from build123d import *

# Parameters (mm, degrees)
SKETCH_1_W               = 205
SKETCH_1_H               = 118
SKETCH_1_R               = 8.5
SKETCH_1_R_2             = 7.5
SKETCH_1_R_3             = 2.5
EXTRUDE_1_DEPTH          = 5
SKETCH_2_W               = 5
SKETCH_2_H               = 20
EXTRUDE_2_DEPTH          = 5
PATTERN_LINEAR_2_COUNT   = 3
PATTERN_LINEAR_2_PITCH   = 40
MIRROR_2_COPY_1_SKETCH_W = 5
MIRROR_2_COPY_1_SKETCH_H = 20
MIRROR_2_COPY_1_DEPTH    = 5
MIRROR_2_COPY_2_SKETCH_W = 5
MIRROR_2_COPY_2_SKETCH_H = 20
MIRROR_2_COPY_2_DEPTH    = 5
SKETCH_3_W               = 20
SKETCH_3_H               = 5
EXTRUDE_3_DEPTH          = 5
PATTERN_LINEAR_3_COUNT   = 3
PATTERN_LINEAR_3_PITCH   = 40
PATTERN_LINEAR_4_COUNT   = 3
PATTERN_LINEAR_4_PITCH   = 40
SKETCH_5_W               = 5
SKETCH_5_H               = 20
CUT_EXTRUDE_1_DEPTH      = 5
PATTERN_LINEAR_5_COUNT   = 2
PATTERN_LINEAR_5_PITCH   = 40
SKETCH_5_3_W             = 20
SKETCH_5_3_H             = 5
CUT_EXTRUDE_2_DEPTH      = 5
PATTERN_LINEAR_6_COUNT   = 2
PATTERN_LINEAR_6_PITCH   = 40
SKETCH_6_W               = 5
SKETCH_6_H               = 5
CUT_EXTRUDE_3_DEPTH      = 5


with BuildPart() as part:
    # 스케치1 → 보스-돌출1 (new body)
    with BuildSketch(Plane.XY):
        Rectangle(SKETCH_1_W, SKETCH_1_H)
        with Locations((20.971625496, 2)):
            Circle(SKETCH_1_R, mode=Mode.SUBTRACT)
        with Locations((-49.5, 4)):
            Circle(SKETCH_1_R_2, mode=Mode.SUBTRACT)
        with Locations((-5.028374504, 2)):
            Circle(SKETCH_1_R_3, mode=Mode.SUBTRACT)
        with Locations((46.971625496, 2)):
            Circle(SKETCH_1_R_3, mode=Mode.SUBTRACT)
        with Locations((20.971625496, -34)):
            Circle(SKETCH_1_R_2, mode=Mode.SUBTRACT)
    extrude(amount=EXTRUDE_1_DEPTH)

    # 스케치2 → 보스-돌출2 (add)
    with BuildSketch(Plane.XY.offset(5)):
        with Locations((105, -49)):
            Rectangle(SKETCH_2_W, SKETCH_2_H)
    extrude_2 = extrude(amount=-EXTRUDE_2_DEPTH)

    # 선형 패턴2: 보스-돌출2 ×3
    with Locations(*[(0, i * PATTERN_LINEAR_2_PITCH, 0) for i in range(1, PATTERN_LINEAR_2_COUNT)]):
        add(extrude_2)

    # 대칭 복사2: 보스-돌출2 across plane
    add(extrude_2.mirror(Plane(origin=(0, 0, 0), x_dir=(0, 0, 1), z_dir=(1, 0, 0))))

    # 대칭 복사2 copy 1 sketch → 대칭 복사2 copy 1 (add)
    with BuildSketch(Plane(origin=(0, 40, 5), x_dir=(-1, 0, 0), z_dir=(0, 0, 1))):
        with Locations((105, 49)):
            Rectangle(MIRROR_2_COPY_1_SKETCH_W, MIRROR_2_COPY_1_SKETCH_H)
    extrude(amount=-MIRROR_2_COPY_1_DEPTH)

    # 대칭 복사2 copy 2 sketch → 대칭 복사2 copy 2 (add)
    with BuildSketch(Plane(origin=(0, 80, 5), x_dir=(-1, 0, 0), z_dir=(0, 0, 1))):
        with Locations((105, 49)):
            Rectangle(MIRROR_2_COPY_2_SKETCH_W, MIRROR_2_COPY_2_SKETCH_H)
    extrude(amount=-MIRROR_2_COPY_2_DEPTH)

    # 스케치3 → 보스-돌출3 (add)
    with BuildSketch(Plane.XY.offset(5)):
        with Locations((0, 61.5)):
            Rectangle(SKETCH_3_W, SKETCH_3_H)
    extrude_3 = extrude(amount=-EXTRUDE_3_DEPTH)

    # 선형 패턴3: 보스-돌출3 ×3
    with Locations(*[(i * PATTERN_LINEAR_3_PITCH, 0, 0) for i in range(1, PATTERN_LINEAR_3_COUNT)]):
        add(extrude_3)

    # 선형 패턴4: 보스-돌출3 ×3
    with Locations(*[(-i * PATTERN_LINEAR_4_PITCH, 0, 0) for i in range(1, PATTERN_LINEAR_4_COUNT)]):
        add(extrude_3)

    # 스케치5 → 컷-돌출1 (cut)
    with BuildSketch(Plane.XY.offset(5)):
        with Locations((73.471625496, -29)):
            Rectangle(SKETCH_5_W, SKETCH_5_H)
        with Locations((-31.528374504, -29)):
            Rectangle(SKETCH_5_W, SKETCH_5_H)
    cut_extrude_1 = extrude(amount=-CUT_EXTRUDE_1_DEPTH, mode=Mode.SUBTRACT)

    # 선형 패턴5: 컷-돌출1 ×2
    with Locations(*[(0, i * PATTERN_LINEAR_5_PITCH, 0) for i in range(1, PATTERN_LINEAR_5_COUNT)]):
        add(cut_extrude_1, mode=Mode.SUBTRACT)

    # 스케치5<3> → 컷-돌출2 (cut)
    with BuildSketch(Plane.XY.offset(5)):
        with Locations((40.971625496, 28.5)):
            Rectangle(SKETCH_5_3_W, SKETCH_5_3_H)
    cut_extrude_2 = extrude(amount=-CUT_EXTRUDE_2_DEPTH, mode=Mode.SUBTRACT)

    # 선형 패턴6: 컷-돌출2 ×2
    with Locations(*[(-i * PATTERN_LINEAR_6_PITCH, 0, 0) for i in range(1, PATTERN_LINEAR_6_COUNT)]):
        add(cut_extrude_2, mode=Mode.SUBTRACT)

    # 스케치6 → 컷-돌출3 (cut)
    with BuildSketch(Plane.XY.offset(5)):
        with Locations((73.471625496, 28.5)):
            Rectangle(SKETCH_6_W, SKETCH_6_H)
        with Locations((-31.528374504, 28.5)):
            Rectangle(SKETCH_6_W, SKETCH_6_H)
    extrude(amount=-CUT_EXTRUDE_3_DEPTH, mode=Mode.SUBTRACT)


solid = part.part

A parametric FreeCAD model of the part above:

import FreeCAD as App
import Part
import Sketcher
from FreeCAD import Vector
Q = App.Units.Quantity

doc = App.newDocument("Part")
body = doc.addObject("PartDesign::Body", "Body")

sketch1 = body.newObject("Sketcher::SketchObject", "Sketch")
sketch1.AttachmentSupport = (doc.getObject("XY_Plane"), [""])
sketch1.MapMode = "FlatFace"
sketch1.addGeometry(Part.LineSegment(Vector(-102.5, 59, 0), Vector(-102.5, -59, 0)), False)
sketch1.addGeometry(Part.LineSegment(Vector(-102.5, -59, 0), Vector(102.5, -59, 0)), False)
sketch1.addGeometry(Part.LineSegment(Vector(102.5, -59, 0), Vector(102.5, 59, 0)), False)
sketch1.addGeometry(Part.LineSegment(Vector(102.5, 59, 0), Vector(-102.5, 59, 0)), False)
sketch1.addGeometry(Part.Circle(Vector(21, -34, 0), Vector(0, 0, 1), 7.5), False)
sketch1.addGeometry(Part.Circle(Vector(-49.5, 4, 0), Vector(0, 0, 1), 7.5), False)
sketch1.addGeometry(Part.Circle(Vector(-5, 2, 0), Vector(0, 0, 1), 2.5), False)
sketch1.addGeometry(Part.Circle(Vector(21, 2, 0), Vector(0, 0, 1), 8.5), False)
sketch1.addGeometry(Part.Circle(Vector(47, 2, 0), Vector(0, 0, 1), 2.5), False)
sketch1.addConstraint(Sketcher.Constraint("Coincident", 0, 2, 1, 1))
sketch1.addConstraint(Sketcher.Constraint("Coincident", 1, 2, 2, 1))
sketch1.addConstraint(Sketcher.Constraint("Coincident", 2, 2, 3, 1))
sketch1.addConstraint(Sketcher.Constraint("Coincident", 3, 2, 0, 1))
sketch1.addConstraint(Sketcher.Constraint("Vertical", 0))
sketch1.addConstraint(Sketcher.Constraint("Horizontal", 1))
sketch1.addConstraint(Sketcher.Constraint("Vertical", 2))
sketch1.addConstraint(Sketcher.Constraint("Horizontal", 3))
sketch1.addConstraint(Sketcher.Constraint("Equal", 4, 5))
sketch1.addConstraint(Sketcher.Constraint("Equal", 6, 8))
sketch1.addConstraint(Sketcher.Constraint("Symmetric", 0, 2, 2, 2, -1, 1))
sketch1.addConstraint(Sketcher.Constraint("Horizontal", 6, 3, 7, 3))
sketch1.addConstraint(Sketcher.Constraint("Horizontal", 7, 3, 8, 3))
sketch1.addConstraint(Sketcher.Constraint("Vertical", 4, 3, 7, 3))
sketch1.addConstraint(Sketcher.Constraint("Diameter", 4, Q("15 mm")))
sketch1.addConstraint(Sketcher.Constraint("Diameter", 6, Q("5 mm")))
sketch1.addConstraint(Sketcher.Constraint("Diameter", 7, Q("17 mm")))
sketch1.addConstraint(Sketcher.Constraint("DistanceX", 1, 1, 1, 2, Q("205 mm")))
sketch1.addConstraint(Sketcher.Constraint("DistanceY", 0, 2, 0, 1, Q("118 mm")))
sketch1.addConstraint(Sketcher.Constraint("DistanceY", 4, 3, -1, 1, Q("34 mm")))
sketch1.addConstraint(Sketcher.Constraint("DistanceY", -1, 1, 5, 3, Q("4 mm")))
sketch1.addConstraint(Sketcher.Constraint("DistanceY", -1, 1, 6, 3, Q("2 mm")))
sketch1.addConstraint(Sketcher.Constraint("DistanceX", 6, 3, 4, 3, Q("26 mm")))
sketch1.addConstraint(Sketcher.Constraint("DistanceX", 7, 3, 8, 3, Q("26 mm")))
sketch1.addConstraint(Sketcher.Constraint("DistanceX", 0, 2, 5, 3, Q("53 mm")))
sketch1.addConstraint(Sketcher.Constraint("DistanceX", -1, 1, 4, 3, Q("20.971625 mm")))
pad1 = body.newObject("PartDesign::Pad", "Pad")
pad1.Profile = sketch1
pad1.Length = 5

sketch2 = body.newObject("Sketcher::SketchObject", "Sketch001")
sketch2.AttachmentSupport = (doc.getObject("XY_Plane"), [""])
sketch2.MapMode = "FlatFace"
sketch2.AttachmentOffset = App.Placement(Vector(0, 0, 5), App.Rotation())
sketch2.addGeometry(Part.LineSegment(Vector(102, -39, 0), Vector(102, -59, 0)), False)
sketch2.addGeometry(Part.LineSegment(Vector(102, -59, 0), Vector(108, -59, 0)), False)
sketch2.addGeometry(Part.LineSegment(Vector(108, -59, 0), Vector(108, -39, 0)), False)
sketch2.addGeometry(Part.LineSegment(Vector(108, -39, 0), Vector(102, -39, 0)), False)
sketch2.addConstraint(Sketcher.Constraint("Coincident", 0, 2, 1, 1))
sketch2.addConstraint(Sketcher.Constraint("Coincident", 1, 2, 2, 1))
sketch2.addConstraint(Sketcher.Constraint("Coincident", 2, 2, 3, 1))
sketch2.addConstraint(Sketcher.Constraint("Coincident", 3, 2, 0, 1))
sketch2.addConstraint(Sketcher.Constraint("Vertical", 0))
sketch2.addConstraint(Sketcher.Constraint("Horizontal", 1))
sketch2.addConstraint(Sketcher.Constraint("Vertical", 2))
sketch2.addConstraint(Sketcher.Constraint("Horizontal", 3))
sketch2.addConstraint(Sketcher.Constraint("DistanceX", 1, 1, 1, 2, Q("5 mm")))
sketch2.addConstraint(Sketcher.Constraint("DistanceY", 0, 2, 0, 1, Q("20 mm")))
sketch2.addConstraint(Sketcher.Constraint("DistanceY", 0, 2, -1, 1, Q("59 mm")))
sketch2.addConstraint(Sketcher.Constraint("DistanceX", -1, 1, 0, 2, Q("102.5 mm")))
pad2 = body.newObject("PartDesign::Pad", "Pad001")
pad2.Profile = sketch2
pad2.Length = 5
pad2.Reversed = True
doc.recompute()

linearpattern = body.newObject("PartDesign::LinearPattern", "LinearPattern")
linearpattern.Originals = [pad2]
linearpattern.Direction = (doc.getObject("Y_Axis"), [""])
linearpattern.Mode = "offset"
linearpattern.Offset = 40
linearpattern.Occurrences = 3
body.Tip = linearpattern
doc.recompute()

mirrored = body.newObject("PartDesign::Mirrored", "Mirrored")
mirrored.Originals = [pad2]
mirrored.MirrorPlane = (doc.getObject("YZ_Plane"), [""])
body.Tip = mirrored

sketch3 = body.newObject("Sketcher::SketchObject", "Sketch002")
sketch3.AttachmentSupport = (doc.getObject("XY_Plane"), [""])
sketch3.MapMode = "FlatFace"
sketch3.AttachmentOffset = App.Placement(Vector(0, 0, 5), App.Rotation())
sketch3.addGeometry(Part.LineSegment(Vector(-102, -19, 0), Vector(-102, 1, 0)), False)
sketch3.addGeometry(Part.LineSegment(Vector(-102, 1, 0), Vector(-108, 1, 0)), False)
sketch3.addGeometry(Part.LineSegment(Vector(-108, 1, 0), Vector(-108, -19, 0)), False)
sketch3.addGeometry(Part.LineSegment(Vector(-108, -19, 0), Vector(-102, -19, 0)), False)
sketch3.addConstraint(Sketcher.Constraint("Coincident", 0, 2, 1, 1))
sketch3.addConstraint(Sketcher.Constraint("Coincident", 1, 2, 2, 1))
sketch3.addConstraint(Sketcher.Constraint("Coincident", 2, 2, 3, 1))
sketch3.addConstraint(Sketcher.Constraint("Coincident", 3, 2, 0, 1))
sketch3.addConstraint(Sketcher.Constraint("Vertical", 0))
sketch3.addConstraint(Sketcher.Constraint("Horizontal", 1))
sketch3.addConstraint(Sketcher.Constraint("Vertical", 2))
sketch3.addConstraint(Sketcher.Constraint("Horizontal", 3))
sketch3.addConstraint(Sketcher.Constraint("DistanceX", 1, 2, 1, 1, Q("5 mm")))
sketch3.addConstraint(Sketcher.Constraint("DistanceY", 0, 1, 0, 2, Q("20 mm")))
sketch3.addConstraint(Sketcher.Constraint("DistanceY", -1, 1, 0, 2, Q("1 mm")))
sketch3.addConstraint(Sketcher.Constraint("DistanceX", 0, 2, -1, 1, Q("102.5 mm")))
pad3 = body.newObject("PartDesign::Pad", "Pad002")
pad3.Profile = sketch3
pad3.Length = 5
pad3.Reversed = True

sketch4 = body.newObject("Sketcher::SketchObject", "Sketch003")
sketch4.AttachmentSupport = (doc.getObject("XY_Plane"), [""])
sketch4.MapMode = "FlatFace"
sketch4.AttachmentOffset = App.Placement(Vector(0, 0, 5), App.Rotation())
sketch4.addGeometry(Part.LineSegment(Vector(-102, 21, 0), Vector(-102, 41, 0)), False)
sketch4.addGeometry(Part.LineSegment(Vector(-102, 41, 0), Vector(-108, 41, 0)), False)
sketch4.addGeometry(Part.LineSegment(Vector(-108, 41, 0), Vector(-108, 21, 0)), False)
sketch4.addGeometry(Part.LineSegment(Vector(-108, 21, 0), Vector(-102, 21, 0)), False)
sketch4.addConstraint(Sketcher.Constraint("Coincident", 0, 2, 1, 1))
sketch4.addConstraint(Sketcher.Constraint("Coincident", 1, 2, 2, 1))
sketch4.addConstraint(Sketcher.Constraint("Coincident", 2, 2, 3, 1))
sketch4.addConstraint(Sketcher.Constraint("Coincident", 3, 2, 0, 1))
sketch4.addConstraint(Sketcher.Constraint("Vertical", 0))
sketch4.addConstraint(Sketcher.Constraint("Horizontal", 1))
sketch4.addConstraint(Sketcher.Constraint("Vertical", 2))
sketch4.addConstraint(Sketcher.Constraint("Horizontal", 3))
sketch4.addConstraint(Sketcher.Constraint("DistanceX", 1, 2, 1, 1, Q("5 mm")))
sketch4.addConstraint(Sketcher.Constraint("DistanceY", 0, 1, 0, 2, Q("20 mm")))
sketch4.addConstraint(Sketcher.Constraint("DistanceY", -1, 1, 0, 2, Q("41 mm")))
sketch4.addConstraint(Sketcher.Constraint("DistanceX", 0, 2, -1, 1, Q("102.5 mm")))
pad4 = body.newObject("PartDesign::Pad", "Pad003")
pad4.Profile = sketch4
pad4.Length = 5
pad4.Reversed = True

sketch5 = body.newObject("Sketcher::SketchObject", "Sketch004")
sketch5.AttachmentSupport = (doc.getObject("XY_Plane"), [""])
sketch5.MapMode = "FlatFace"
sketch5.AttachmentOffset = App.Placement(Vector(0, 0, 5), App.Rotation())
sketch5.addGeometry(Part.LineSegment(Vector(-10, 64, 0), Vector(-10, 59, 0)), False)
sketch5.addGeometry(Part.LineSegment(Vector(-10, 59, 0), Vector(10, 59, 0)), False)
sketch5.addGeometry(Part.LineSegment(Vector(10, 59, 0), Vector(10, 64, 0)), False)
sketch5.addGeometry(Part.LineSegment(Vector(10, 64, 0), Vector(-10, 64, 0)), False)
sketch5.addConstraint(Sketcher.Constraint("Coincident", 0, 2, 1, 1))
sketch5.addConstraint(Sketcher.Constraint("Coincident", 1, 2, 2, 1))
sketch5.addConstraint(Sketcher.Constraint("Coincident", 2, 2, 3, 1))
sketch5.addConstraint(Sketcher.Constraint("Coincident", 3, 2, 0, 1))
sketch5.addConstraint(Sketcher.Constraint("Vertical", 0))
sketch5.addConstraint(Sketcher.Constraint("Horizontal", 1))
sketch5.addConstraint(Sketcher.Constraint("Vertical", 2))
sketch5.addConstraint(Sketcher.Constraint("Horizontal", 3))
sketch5.addConstraint(Sketcher.Constraint("DistanceX", 1, 1, 1, 2, Q("20 mm")))
sketch5.addConstraint(Sketcher.Constraint("DistanceY", 0, 2, 0, 1, Q("5 mm")))
sketch5.addConstraint(Sketcher.Constraint("DistanceX", 0, 2, -1, 1, Q("10 mm")))
sketch5.addConstraint(Sketcher.Constraint("DistanceY", -1, 1, 0, 2, Q("59 mm")))
pad5 = body.newObject("PartDesign::Pad", "Pad004")
pad5.Profile = sketch5
pad5.Length = 5
pad5.Reversed = True
doc.recompute()

linearpattern2 = body.newObject("PartDesign::LinearPattern", "LinearPattern001")
linearpattern2.Originals = [pad5]
linearpattern2.Direction = (doc.getObject("X_Axis"), [""])
linearpattern2.Mode = "offset"
linearpattern2.Offset = 40
linearpattern2.Occurrences = 3
body.Tip = linearpattern2
doc.recompute()

linearpattern3 = body.newObject("PartDesign::LinearPattern", "LinearPattern002")
linearpattern3.Originals = [pad5]
linearpattern3.Direction = (doc.getObject("X_Axis"), [""])
linearpattern3.Mode = "offset"
linearpattern3.Offset = 40
linearpattern3.Occurrences = 3
linearpattern3.Reversed = True
body.Tip = linearpattern3

sketch6 = body.newObject("Sketcher::SketchObject", "Sketch005")
sketch6.AttachmentSupport = (doc.getObject("XY_Plane"), [""])
sketch6.MapMode = "FlatFace"
sketch6.AttachmentOffset = App.Placement(Vector(0, 0, 5), App.Rotation())
sketch6.addGeometry(Part.LineSegment(Vector(71, -19, 0), Vector(71, -39, 0)), False)
sketch6.addGeometry(Part.LineSegment(Vector(71, -39, 0), Vector(76, -39, 0)), False)
sketch6.addGeometry(Part.LineSegment(Vector(76, -39, 0), Vector(76, -19, 0)), False)
sketch6.addGeometry(Part.LineSegment(Vector(76, -19, 0), Vector(71, -19, 0)), False)
sketch6.addGeometry(Part.LineSegment(Vector(-34, -19, 0), Vector(-34, -39, 0)), False)
sketch6.addGeometry(Part.LineSegment(Vector(-34, -39, 0), Vector(-29, -39, 0)), False)
sketch6.addGeometry(Part.LineSegment(Vector(-29, -39, 0), Vector(-29, -19, 0)), False)
sketch6.addGeometry(Part.LineSegment(Vector(-29, -19, 0), Vector(-34, -19, 0)), False)
sketch6.addConstraint(Sketcher.Constraint("Coincident", 0, 2, 1, 1))
sketch6.addConstraint(Sketcher.Constraint("Coincident", 1, 2, 2, 1))
sketch6.addConstraint(Sketcher.Constraint("Coincident", 2, 2, 3, 1))
sketch6.addConstraint(Sketcher.Constraint("Coincident", 3, 2, 0, 1))
sketch6.addConstraint(Sketcher.Constraint("Coincident", 4, 2, 5, 1))
sketch6.addConstraint(Sketcher.Constraint("Coincident", 5, 2, 6, 1))
sketch6.addConstraint(Sketcher.Constraint("Coincident", 6, 2, 7, 1))
sketch6.addConstraint(Sketcher.Constraint("Coincident", 7, 2, 4, 1))
sketch6.addConstraint(Sketcher.Constraint("Vertical", 0))
sketch6.addConstraint(Sketcher.Constraint("Horizontal", 1))
sketch6.addConstraint(Sketcher.Constraint("Vertical", 2))
sketch6.addConstraint(Sketcher.Constraint("Horizontal", 3))
sketch6.addConstraint(Sketcher.Constraint("Vertical", 4))
sketch6.addConstraint(Sketcher.Constraint("Horizontal", 5))
sketch6.addConstraint(Sketcher.Constraint("Vertical", 6))
sketch6.addConstraint(Sketcher.Constraint("Horizontal", 7))
sketch6.addConstraint(Sketcher.Constraint("Horizontal", 1, 2, 4, 2))
sketch6.addConstraint(Sketcher.Constraint("Horizontal", 3, 2, 6, 2))
sketch6.addConstraint(Sketcher.Constraint("Equal", 3, 5))
sketch6.addConstraint(Sketcher.Constraint("DistanceX", 1, 1, 1, 2, Q("5 mm")))
sketch6.addConstraint(Sketcher.Constraint("DistanceY", 0, 2, 0, 1, Q("20 mm")))
sketch6.addConstraint(Sketcher.Constraint("DistanceY", 0, 2, -1, 1, Q("39 mm")))
sketch6.addConstraint(Sketcher.Constraint("DistanceX", 4, 2, 0, 2, Q("105 mm")))
sketch6.addConstraint(Sketcher.Constraint("DistanceX", -1, 1, 0, 2, Q("70.971625 mm")))
pocket1 = body.newObject("PartDesign::Pocket", "Pocket")
pocket1.Profile = sketch6
pocket1.Length = 5
doc.recompute()

linearpattern4 = body.newObject("PartDesign::LinearPattern", "LinearPattern003")
linearpattern4.Originals = [pocket1]
linearpattern4.Direction = (doc.getObject("Y_Axis"), [""])
linearpattern4.Mode = "offset"
linearpattern4.Offset = 40
linearpattern4.Occurrences = 2
body.Tip = linearpattern4

sketch7 = body.newObject("Sketcher::SketchObject", "Sketch006")
sketch7.AttachmentSupport = (doc.getObject("XY_Plane"), [""])
sketch7.MapMode = "FlatFace"
sketch7.AttachmentOffset = App.Placement(Vector(0, 0, 5), App.Rotation())
sketch7.addGeometry(Part.LineSegment(Vector(31, 31, 0), Vector(31, 26, 0)), False)
sketch7.addGeometry(Part.LineSegment(Vector(31, 26, 0), Vector(51, 26, 0)), False)
sketch7.addGeometry(Part.LineSegment(Vector(51, 26, 0), Vector(51, 31, 0)), False)
sketch7.addGeometry(Part.LineSegment(Vector(51, 31, 0), Vector(31, 31, 0)), False)
sketch7.addConstraint(Sketcher.Constraint("Coincident", 0, 2, 1, 1))
sketch7.addConstraint(Sketcher.Constraint("Coincident", 1, 2, 2, 1))
sketch7.addConstraint(Sketcher.Constraint("Coincident", 2, 2, 3, 1))
sketch7.addConstraint(Sketcher.Constraint("Coincident", 3, 2, 0, 1))
sketch7.addConstraint(Sketcher.Constraint("Vertical", 0))
sketch7.addConstraint(Sketcher.Constraint("Horizontal", 1))
sketch7.addConstraint(Sketcher.Constraint("Vertical", 2))
sketch7.addConstraint(Sketcher.Constraint("Horizontal", 3))
sketch7.addConstraint(Sketcher.Constraint("DistanceX", 1, 1, 1, 2, Q("20 mm")))
sketch7.addConstraint(Sketcher.Constraint("DistanceY", 0, 2, 0, 1, Q("5 mm")))
sketch7.addConstraint(Sketcher.Constraint("DistanceY", -1, 1, 0, 2, Q("26 mm")))
sketch7.addConstraint(Sketcher.Constraint("DistanceX", -1, 1, 0, 2, Q("30.971625 mm")))
pocket2 = body.newObject("PartDesign::Pocket", "Pocket001")
pocket2.Profile = sketch7
pocket2.Length = 5
doc.recompute()

linearpattern5 = body.newObject("PartDesign::LinearPattern", "LinearPattern004")
linearpattern5.Originals = [pocket2]
linearpattern5.Direction = (doc.getObject("X_Axis"), [""])
linearpattern5.Mode = "offset"
linearpattern5.Offset = 40
linearpattern5.Occurrences = 2
linearpattern5.Reversed = True
body.Tip = linearpattern5

sketch8 = body.newObject("Sketcher::SketchObject", "Sketch007")
sketch8.AttachmentSupport = (doc.getObject("XY_Plane"), [""])
sketch8.MapMode = "FlatFace"
sketch8.AttachmentOffset = App.Placement(Vector(0, 0, 5), App.Rotation())
sketch8.addGeometry(Part.LineSegment(Vector(71, 31, 0), Vector(71, 26, 0)), False)
sketch8.addGeometry(Part.LineSegment(Vector(71, 26, 0), Vector(76, 26, 0)), False)
sketch8.addGeometry(Part.LineSegment(Vector(76, 26, 0), Vector(76, 31, 0)), False)
sketch8.addGeometry(Part.LineSegment(Vector(76, 31, 0), Vector(71, 31, 0)), False)
sketch8.addGeometry(Part.LineSegment(Vector(-34, 31, 0), Vector(-34, 26, 0)), False)
sketch8.addGeometry(Part.LineSegment(Vector(-34, 26, 0), Vector(-29, 26, 0)), False)
sketch8.addGeometry(Part.LineSegment(Vector(-29, 26, 0), Vector(-29, 31, 0)), False)
sketch8.addGeometry(Part.LineSegment(Vector(-29, 31, 0), Vector(-34, 31, 0)), False)
sketch8.addConstraint(Sketcher.Constraint("Coincident", 0, 2, 1, 1))
sketch8.addConstraint(Sketcher.Constraint("Coincident", 1, 2, 2, 1))
sketch8.addConstraint(Sketcher.Constraint("Coincident", 2, 2, 3, 1))
sketch8.addConstraint(Sketcher.Constraint("Coincident", 3, 2, 0, 1))
sketch8.addConstraint(Sketcher.Constraint("Coincident", 4, 2, 5, 1))
sketch8.addConstraint(Sketcher.Constraint("Coincident", 5, 2, 6, 1))
sketch8.addConstraint(Sketcher.Constraint("Coincident", 6, 2, 7, 1))
sketch8.addConstraint(Sketcher.Constraint("Coincident", 7, 2, 4, 1))
sketch8.addConstraint(Sketcher.Constraint("Vertical", 0))
sketch8.addConstraint(Sketcher.Constraint("Horizontal", 1))
sketch8.addConstraint(Sketcher.Constraint("Vertical", 2))
sketch8.addConstraint(Sketcher.Constraint("Horizontal", 3))
sketch8.addConstraint(Sketcher.Constraint("Vertical", 4))
sketch8.addConstraint(Sketcher.Constraint("Horizontal", 5))
sketch8.addConstraint(Sketcher.Constraint("Vertical", 6))
sketch8.addConstraint(Sketcher.Constraint("Horizontal", 7))
sketch8.addConstraint(Sketcher.Constraint("Horizontal", 1, 2, 4, 2))
sketch8.addConstraint(Sketcher.Constraint("Horizontal", 3, 2, 6, 2))
sketch8.addConstraint(Sketcher.Constraint("Equal", 3, 5))
sketch8.addConstraint(Sketcher.Constraint("Equal", 7, 0))
sketch8.addConstraint(Sketcher.Constraint("DistanceX", 1, 1, 1, 2, Q("5 mm")))
sketch8.addConstraint(Sketcher.Constraint("DistanceY", -1, 1, 0, 2, Q("26 mm")))
sketch8.addConstraint(Sketcher.Constraint("DistanceX", 4, 2, 0, 2, Q("105 mm")))
sketch8.addConstraint(Sketcher.Constraint("DistanceX", -1, 1, 0, 2, Q("70.971625 mm")))
pocket3 = body.newObject("PartDesign::Pocket", "Pocket002")
pocket3.Profile = sketch8
pocket3.Length = 5

doc.recompute()
